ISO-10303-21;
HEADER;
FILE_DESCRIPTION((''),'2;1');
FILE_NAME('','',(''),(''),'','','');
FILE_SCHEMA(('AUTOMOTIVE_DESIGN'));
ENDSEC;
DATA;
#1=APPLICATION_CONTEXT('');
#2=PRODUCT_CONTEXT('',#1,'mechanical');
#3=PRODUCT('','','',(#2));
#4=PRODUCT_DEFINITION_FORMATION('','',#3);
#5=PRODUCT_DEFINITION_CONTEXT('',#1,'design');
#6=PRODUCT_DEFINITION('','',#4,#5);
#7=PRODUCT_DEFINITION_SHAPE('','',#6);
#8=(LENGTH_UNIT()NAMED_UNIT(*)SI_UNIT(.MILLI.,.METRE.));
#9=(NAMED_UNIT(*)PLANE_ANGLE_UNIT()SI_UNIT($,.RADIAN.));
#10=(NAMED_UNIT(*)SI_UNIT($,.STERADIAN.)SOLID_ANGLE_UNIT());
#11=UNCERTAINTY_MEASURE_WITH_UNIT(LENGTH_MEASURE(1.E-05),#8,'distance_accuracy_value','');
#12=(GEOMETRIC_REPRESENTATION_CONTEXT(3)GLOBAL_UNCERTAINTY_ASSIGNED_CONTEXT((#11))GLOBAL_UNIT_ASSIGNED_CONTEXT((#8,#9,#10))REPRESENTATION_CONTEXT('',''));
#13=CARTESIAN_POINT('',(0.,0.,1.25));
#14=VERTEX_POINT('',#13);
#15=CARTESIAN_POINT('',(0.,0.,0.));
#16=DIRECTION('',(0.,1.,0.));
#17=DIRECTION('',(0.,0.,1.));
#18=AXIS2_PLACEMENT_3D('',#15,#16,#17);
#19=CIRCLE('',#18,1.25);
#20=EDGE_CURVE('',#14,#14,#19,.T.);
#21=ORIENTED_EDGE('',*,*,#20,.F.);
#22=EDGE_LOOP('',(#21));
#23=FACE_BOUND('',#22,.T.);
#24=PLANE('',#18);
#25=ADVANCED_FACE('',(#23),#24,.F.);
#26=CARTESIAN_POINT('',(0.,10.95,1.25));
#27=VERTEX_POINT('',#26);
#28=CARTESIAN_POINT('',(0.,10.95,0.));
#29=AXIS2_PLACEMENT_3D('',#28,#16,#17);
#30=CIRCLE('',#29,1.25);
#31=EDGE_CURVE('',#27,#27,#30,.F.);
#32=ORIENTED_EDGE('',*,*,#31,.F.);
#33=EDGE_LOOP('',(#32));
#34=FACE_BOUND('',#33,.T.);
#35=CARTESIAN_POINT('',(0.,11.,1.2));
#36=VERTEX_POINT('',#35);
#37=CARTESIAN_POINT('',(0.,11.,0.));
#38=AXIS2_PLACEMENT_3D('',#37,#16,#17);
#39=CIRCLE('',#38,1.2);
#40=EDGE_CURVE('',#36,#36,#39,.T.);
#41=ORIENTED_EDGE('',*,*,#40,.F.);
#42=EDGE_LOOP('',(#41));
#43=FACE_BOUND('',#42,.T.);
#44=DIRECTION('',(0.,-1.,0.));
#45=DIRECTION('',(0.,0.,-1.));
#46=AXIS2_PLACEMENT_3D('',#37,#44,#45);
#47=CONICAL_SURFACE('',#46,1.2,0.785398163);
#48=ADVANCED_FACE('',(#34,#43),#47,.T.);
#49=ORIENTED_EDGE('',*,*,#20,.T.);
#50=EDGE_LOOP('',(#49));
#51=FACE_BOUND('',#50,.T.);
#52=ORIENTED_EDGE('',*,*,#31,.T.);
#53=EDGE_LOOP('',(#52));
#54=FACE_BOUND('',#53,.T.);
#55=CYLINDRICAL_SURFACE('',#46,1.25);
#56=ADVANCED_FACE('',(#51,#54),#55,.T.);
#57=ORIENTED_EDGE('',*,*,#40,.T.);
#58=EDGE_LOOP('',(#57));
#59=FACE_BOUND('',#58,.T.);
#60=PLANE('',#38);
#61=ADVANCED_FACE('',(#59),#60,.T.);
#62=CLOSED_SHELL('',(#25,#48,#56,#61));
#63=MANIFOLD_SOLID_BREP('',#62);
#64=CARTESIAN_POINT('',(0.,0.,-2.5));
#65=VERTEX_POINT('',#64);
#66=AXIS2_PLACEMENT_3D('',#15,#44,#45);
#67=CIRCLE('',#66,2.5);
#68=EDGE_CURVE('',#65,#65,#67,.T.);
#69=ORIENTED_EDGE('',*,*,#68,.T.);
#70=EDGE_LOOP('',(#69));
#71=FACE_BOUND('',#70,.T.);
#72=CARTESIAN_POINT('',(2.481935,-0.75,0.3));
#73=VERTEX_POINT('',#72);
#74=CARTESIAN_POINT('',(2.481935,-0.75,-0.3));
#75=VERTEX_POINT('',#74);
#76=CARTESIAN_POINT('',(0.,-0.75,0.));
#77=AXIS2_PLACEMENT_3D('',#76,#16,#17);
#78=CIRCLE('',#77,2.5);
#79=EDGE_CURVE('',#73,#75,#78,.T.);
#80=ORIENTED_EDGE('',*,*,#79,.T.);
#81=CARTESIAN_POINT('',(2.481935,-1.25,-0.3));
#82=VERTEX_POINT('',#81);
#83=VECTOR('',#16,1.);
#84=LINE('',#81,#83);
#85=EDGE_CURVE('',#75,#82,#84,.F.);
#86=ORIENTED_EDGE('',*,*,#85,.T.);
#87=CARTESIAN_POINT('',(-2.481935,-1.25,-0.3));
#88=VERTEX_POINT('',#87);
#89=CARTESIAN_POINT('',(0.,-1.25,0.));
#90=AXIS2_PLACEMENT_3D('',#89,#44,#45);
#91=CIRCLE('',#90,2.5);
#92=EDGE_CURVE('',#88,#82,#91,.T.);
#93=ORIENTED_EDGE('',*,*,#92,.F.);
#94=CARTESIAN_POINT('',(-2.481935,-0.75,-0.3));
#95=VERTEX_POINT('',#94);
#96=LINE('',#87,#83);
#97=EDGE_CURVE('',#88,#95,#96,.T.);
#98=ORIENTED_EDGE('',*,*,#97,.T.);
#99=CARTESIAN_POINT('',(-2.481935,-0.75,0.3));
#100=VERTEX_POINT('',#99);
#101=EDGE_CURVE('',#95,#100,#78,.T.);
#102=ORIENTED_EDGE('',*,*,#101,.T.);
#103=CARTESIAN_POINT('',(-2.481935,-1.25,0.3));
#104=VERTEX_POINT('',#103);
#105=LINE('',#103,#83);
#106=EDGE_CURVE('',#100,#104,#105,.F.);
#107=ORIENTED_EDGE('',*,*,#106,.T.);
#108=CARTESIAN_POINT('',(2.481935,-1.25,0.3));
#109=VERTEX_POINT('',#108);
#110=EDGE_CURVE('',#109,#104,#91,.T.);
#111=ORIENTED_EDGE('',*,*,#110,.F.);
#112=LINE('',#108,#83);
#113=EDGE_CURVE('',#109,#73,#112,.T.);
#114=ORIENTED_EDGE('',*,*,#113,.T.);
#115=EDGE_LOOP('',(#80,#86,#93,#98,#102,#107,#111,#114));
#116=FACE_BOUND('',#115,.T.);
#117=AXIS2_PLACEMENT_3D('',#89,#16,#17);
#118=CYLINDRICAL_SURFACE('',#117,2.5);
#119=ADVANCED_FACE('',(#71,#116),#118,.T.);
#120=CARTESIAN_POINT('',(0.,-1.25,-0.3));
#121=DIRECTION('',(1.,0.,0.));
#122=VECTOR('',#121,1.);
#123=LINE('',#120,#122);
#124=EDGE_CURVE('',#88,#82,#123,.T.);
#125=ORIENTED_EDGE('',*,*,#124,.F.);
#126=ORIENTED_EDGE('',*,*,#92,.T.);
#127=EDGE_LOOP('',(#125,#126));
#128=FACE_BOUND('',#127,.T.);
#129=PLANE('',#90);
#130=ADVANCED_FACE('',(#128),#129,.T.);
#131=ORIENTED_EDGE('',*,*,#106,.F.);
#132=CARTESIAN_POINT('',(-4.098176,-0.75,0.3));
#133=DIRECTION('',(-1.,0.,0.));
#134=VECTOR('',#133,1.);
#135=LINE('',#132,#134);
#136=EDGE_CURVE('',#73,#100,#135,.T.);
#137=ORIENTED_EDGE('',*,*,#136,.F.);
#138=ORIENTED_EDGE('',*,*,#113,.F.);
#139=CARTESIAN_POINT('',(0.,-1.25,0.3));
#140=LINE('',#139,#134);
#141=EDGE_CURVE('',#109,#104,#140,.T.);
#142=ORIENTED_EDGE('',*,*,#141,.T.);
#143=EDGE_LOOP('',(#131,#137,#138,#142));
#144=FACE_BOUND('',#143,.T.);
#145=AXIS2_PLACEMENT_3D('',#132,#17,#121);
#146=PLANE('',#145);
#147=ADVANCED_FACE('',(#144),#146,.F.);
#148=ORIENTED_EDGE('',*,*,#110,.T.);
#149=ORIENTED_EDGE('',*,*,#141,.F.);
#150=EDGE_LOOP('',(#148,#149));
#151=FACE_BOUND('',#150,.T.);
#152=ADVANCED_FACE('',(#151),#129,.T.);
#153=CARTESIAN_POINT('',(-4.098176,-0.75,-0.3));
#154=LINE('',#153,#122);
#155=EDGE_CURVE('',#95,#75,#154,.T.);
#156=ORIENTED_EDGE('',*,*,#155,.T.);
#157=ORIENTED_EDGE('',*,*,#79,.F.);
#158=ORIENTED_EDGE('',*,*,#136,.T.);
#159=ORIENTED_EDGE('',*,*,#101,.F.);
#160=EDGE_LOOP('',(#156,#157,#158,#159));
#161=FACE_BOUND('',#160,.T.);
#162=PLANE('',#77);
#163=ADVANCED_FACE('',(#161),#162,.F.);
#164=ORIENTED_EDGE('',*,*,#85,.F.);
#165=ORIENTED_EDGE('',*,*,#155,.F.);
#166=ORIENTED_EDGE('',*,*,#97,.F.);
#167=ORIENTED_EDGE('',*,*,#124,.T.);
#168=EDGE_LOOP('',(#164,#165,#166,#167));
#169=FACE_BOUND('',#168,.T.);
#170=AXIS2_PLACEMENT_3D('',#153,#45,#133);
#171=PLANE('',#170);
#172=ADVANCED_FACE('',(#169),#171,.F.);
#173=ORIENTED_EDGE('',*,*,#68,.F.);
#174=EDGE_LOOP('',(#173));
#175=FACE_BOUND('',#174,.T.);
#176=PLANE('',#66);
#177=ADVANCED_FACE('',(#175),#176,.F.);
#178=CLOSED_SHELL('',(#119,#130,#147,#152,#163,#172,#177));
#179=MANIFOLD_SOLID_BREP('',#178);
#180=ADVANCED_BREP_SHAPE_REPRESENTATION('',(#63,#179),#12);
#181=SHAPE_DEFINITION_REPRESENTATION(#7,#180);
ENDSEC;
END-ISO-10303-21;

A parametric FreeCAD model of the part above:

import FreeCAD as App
import Part
import Sketcher

V = App.Vector
Q = App.Units.Quantity


def edges_at(feature, points):
    """Names of the edges that pass closest to the given points."""
    edges = feature.Shape.Edges
    near = lambda p: min(range(len(edges)), key=lambda i: edges[i].distToShape(Part.Vertex(*p))[0])
    return sorted({f"Edge{near(p) + 1}" for p in points})

doc = App.newDocument("Part")
body = doc.addObject("PartDesign::Body", "Body")

sketch1 = body.newObject("Sketcher::SketchObject", "Sketch")
sketch1.AttachmentSupport = (doc.getObject("XZ_Plane"), [""])
sketch1.MapMode = "FlatFace"
sketch1.addGeometry(Part.Circle(V(0, 0, 0), V(0, 0, 1), 1.25), False)
sketch1.addConstraint([
    Sketcher.Constraint("Coincident", 0, 3, -1, 1),
    Sketcher.Constraint("Diameter", 0, Q("2.5 mm")),
])
pad1 = body.newObject("PartDesign::Pad", "Pad")
pad1.Profile = sketch1
pad1.Length = 11
pad1.Reversed = True
doc.recompute()

chamfer = body.newObject("PartDesign::Chamfer", "Chamfer")
chamfer.Base = (pad1, edges_at(pad1, [(-1.25, 11, 0)]))
chamfer.Size = 0.05
body2 = doc.addObject("PartDesign::Body", "Body001")

sketch2 = body2.newObject("Sketcher::SketchObject", "Sketch001")
sketch2.AttachmentSupport = (doc.getObject("XZ_Plane001"), [""])
sketch2.MapMode = "FlatFace"
sketch2.addGeometry(Part.Circle(V(0, 0, 0), V(0, 0, 1), 2.5), False)
sketch2.addConstraint([
    Sketcher.Constraint("Coincident", 0, 3, -1, 1),
    Sketcher.Constraint("Diameter", 0, Q("5 mm")),
])
pad2 = body2.newObject("PartDesign::Pad", "Pad001")
pad2.Profile = sketch2
pad2.Length = 1.25

sketch3 = body2.newObject("Sketcher::SketchObject", "Sketch002")
sketch3.AttachmentSupport = (doc.getObject("XZ_Plane001"), [""])
sketch3.MapMode = "FlatFace"
sketch3.AttachmentOffset = App.Placement(V(0, 0, 1.25), App.Rotation())
sketch3.addGeometry([
    Part.LineSegment(V(-4.098176, 0.3, 0), V(-4.098176, -0.3, 0)),
    Part.LineSegment(V(-4.098176, -0.3, 0), V(4.098176, -0.3, 0)),
    Part.LineSegment(V(4.098176, -0.3, 0), V(4.098176, 0.3, 0)),
    Part.LineSegment(V(4.098176, 0.3, 0), V(-4.098176, 0.3, 0)),
], False)
sketch3.addConstraint([
    Sketcher.Constraint("Coincident", 0, 2, 1, 1),
    Sketcher.Constraint("Coincident", 1, 2, 2, 1),
    Sketcher.Constraint("Coincident", 2, 2, 3, 1),
    Sketcher.Constraint("Coincident", 3, 2, 0, 1),
    Sketcher.Constraint("Vertical", 0),
    Sketcher.Constraint("Horizontal", 1),
    Sketcher.Constraint("Vertical", 2),
    Sketcher.Constraint("Horizontal", 3),
    Sketcher.Constraint("Symmetric", 0, 2, 2, 2, -1, 1),
    Sketcher.Constraint("DistanceY", 0, 2, 0, 1, Q("0.6 mm")),
    Sketcher.Constraint("DistanceX", 1, 1, 1, 2, Q("8.196352 mm")),
])
pocket1 = body2.newObject("PartDesign::Pocket", "Pocket")
pocket1.Profile = sketch3
pocket1.Length = 0.5

doc.recompute()
